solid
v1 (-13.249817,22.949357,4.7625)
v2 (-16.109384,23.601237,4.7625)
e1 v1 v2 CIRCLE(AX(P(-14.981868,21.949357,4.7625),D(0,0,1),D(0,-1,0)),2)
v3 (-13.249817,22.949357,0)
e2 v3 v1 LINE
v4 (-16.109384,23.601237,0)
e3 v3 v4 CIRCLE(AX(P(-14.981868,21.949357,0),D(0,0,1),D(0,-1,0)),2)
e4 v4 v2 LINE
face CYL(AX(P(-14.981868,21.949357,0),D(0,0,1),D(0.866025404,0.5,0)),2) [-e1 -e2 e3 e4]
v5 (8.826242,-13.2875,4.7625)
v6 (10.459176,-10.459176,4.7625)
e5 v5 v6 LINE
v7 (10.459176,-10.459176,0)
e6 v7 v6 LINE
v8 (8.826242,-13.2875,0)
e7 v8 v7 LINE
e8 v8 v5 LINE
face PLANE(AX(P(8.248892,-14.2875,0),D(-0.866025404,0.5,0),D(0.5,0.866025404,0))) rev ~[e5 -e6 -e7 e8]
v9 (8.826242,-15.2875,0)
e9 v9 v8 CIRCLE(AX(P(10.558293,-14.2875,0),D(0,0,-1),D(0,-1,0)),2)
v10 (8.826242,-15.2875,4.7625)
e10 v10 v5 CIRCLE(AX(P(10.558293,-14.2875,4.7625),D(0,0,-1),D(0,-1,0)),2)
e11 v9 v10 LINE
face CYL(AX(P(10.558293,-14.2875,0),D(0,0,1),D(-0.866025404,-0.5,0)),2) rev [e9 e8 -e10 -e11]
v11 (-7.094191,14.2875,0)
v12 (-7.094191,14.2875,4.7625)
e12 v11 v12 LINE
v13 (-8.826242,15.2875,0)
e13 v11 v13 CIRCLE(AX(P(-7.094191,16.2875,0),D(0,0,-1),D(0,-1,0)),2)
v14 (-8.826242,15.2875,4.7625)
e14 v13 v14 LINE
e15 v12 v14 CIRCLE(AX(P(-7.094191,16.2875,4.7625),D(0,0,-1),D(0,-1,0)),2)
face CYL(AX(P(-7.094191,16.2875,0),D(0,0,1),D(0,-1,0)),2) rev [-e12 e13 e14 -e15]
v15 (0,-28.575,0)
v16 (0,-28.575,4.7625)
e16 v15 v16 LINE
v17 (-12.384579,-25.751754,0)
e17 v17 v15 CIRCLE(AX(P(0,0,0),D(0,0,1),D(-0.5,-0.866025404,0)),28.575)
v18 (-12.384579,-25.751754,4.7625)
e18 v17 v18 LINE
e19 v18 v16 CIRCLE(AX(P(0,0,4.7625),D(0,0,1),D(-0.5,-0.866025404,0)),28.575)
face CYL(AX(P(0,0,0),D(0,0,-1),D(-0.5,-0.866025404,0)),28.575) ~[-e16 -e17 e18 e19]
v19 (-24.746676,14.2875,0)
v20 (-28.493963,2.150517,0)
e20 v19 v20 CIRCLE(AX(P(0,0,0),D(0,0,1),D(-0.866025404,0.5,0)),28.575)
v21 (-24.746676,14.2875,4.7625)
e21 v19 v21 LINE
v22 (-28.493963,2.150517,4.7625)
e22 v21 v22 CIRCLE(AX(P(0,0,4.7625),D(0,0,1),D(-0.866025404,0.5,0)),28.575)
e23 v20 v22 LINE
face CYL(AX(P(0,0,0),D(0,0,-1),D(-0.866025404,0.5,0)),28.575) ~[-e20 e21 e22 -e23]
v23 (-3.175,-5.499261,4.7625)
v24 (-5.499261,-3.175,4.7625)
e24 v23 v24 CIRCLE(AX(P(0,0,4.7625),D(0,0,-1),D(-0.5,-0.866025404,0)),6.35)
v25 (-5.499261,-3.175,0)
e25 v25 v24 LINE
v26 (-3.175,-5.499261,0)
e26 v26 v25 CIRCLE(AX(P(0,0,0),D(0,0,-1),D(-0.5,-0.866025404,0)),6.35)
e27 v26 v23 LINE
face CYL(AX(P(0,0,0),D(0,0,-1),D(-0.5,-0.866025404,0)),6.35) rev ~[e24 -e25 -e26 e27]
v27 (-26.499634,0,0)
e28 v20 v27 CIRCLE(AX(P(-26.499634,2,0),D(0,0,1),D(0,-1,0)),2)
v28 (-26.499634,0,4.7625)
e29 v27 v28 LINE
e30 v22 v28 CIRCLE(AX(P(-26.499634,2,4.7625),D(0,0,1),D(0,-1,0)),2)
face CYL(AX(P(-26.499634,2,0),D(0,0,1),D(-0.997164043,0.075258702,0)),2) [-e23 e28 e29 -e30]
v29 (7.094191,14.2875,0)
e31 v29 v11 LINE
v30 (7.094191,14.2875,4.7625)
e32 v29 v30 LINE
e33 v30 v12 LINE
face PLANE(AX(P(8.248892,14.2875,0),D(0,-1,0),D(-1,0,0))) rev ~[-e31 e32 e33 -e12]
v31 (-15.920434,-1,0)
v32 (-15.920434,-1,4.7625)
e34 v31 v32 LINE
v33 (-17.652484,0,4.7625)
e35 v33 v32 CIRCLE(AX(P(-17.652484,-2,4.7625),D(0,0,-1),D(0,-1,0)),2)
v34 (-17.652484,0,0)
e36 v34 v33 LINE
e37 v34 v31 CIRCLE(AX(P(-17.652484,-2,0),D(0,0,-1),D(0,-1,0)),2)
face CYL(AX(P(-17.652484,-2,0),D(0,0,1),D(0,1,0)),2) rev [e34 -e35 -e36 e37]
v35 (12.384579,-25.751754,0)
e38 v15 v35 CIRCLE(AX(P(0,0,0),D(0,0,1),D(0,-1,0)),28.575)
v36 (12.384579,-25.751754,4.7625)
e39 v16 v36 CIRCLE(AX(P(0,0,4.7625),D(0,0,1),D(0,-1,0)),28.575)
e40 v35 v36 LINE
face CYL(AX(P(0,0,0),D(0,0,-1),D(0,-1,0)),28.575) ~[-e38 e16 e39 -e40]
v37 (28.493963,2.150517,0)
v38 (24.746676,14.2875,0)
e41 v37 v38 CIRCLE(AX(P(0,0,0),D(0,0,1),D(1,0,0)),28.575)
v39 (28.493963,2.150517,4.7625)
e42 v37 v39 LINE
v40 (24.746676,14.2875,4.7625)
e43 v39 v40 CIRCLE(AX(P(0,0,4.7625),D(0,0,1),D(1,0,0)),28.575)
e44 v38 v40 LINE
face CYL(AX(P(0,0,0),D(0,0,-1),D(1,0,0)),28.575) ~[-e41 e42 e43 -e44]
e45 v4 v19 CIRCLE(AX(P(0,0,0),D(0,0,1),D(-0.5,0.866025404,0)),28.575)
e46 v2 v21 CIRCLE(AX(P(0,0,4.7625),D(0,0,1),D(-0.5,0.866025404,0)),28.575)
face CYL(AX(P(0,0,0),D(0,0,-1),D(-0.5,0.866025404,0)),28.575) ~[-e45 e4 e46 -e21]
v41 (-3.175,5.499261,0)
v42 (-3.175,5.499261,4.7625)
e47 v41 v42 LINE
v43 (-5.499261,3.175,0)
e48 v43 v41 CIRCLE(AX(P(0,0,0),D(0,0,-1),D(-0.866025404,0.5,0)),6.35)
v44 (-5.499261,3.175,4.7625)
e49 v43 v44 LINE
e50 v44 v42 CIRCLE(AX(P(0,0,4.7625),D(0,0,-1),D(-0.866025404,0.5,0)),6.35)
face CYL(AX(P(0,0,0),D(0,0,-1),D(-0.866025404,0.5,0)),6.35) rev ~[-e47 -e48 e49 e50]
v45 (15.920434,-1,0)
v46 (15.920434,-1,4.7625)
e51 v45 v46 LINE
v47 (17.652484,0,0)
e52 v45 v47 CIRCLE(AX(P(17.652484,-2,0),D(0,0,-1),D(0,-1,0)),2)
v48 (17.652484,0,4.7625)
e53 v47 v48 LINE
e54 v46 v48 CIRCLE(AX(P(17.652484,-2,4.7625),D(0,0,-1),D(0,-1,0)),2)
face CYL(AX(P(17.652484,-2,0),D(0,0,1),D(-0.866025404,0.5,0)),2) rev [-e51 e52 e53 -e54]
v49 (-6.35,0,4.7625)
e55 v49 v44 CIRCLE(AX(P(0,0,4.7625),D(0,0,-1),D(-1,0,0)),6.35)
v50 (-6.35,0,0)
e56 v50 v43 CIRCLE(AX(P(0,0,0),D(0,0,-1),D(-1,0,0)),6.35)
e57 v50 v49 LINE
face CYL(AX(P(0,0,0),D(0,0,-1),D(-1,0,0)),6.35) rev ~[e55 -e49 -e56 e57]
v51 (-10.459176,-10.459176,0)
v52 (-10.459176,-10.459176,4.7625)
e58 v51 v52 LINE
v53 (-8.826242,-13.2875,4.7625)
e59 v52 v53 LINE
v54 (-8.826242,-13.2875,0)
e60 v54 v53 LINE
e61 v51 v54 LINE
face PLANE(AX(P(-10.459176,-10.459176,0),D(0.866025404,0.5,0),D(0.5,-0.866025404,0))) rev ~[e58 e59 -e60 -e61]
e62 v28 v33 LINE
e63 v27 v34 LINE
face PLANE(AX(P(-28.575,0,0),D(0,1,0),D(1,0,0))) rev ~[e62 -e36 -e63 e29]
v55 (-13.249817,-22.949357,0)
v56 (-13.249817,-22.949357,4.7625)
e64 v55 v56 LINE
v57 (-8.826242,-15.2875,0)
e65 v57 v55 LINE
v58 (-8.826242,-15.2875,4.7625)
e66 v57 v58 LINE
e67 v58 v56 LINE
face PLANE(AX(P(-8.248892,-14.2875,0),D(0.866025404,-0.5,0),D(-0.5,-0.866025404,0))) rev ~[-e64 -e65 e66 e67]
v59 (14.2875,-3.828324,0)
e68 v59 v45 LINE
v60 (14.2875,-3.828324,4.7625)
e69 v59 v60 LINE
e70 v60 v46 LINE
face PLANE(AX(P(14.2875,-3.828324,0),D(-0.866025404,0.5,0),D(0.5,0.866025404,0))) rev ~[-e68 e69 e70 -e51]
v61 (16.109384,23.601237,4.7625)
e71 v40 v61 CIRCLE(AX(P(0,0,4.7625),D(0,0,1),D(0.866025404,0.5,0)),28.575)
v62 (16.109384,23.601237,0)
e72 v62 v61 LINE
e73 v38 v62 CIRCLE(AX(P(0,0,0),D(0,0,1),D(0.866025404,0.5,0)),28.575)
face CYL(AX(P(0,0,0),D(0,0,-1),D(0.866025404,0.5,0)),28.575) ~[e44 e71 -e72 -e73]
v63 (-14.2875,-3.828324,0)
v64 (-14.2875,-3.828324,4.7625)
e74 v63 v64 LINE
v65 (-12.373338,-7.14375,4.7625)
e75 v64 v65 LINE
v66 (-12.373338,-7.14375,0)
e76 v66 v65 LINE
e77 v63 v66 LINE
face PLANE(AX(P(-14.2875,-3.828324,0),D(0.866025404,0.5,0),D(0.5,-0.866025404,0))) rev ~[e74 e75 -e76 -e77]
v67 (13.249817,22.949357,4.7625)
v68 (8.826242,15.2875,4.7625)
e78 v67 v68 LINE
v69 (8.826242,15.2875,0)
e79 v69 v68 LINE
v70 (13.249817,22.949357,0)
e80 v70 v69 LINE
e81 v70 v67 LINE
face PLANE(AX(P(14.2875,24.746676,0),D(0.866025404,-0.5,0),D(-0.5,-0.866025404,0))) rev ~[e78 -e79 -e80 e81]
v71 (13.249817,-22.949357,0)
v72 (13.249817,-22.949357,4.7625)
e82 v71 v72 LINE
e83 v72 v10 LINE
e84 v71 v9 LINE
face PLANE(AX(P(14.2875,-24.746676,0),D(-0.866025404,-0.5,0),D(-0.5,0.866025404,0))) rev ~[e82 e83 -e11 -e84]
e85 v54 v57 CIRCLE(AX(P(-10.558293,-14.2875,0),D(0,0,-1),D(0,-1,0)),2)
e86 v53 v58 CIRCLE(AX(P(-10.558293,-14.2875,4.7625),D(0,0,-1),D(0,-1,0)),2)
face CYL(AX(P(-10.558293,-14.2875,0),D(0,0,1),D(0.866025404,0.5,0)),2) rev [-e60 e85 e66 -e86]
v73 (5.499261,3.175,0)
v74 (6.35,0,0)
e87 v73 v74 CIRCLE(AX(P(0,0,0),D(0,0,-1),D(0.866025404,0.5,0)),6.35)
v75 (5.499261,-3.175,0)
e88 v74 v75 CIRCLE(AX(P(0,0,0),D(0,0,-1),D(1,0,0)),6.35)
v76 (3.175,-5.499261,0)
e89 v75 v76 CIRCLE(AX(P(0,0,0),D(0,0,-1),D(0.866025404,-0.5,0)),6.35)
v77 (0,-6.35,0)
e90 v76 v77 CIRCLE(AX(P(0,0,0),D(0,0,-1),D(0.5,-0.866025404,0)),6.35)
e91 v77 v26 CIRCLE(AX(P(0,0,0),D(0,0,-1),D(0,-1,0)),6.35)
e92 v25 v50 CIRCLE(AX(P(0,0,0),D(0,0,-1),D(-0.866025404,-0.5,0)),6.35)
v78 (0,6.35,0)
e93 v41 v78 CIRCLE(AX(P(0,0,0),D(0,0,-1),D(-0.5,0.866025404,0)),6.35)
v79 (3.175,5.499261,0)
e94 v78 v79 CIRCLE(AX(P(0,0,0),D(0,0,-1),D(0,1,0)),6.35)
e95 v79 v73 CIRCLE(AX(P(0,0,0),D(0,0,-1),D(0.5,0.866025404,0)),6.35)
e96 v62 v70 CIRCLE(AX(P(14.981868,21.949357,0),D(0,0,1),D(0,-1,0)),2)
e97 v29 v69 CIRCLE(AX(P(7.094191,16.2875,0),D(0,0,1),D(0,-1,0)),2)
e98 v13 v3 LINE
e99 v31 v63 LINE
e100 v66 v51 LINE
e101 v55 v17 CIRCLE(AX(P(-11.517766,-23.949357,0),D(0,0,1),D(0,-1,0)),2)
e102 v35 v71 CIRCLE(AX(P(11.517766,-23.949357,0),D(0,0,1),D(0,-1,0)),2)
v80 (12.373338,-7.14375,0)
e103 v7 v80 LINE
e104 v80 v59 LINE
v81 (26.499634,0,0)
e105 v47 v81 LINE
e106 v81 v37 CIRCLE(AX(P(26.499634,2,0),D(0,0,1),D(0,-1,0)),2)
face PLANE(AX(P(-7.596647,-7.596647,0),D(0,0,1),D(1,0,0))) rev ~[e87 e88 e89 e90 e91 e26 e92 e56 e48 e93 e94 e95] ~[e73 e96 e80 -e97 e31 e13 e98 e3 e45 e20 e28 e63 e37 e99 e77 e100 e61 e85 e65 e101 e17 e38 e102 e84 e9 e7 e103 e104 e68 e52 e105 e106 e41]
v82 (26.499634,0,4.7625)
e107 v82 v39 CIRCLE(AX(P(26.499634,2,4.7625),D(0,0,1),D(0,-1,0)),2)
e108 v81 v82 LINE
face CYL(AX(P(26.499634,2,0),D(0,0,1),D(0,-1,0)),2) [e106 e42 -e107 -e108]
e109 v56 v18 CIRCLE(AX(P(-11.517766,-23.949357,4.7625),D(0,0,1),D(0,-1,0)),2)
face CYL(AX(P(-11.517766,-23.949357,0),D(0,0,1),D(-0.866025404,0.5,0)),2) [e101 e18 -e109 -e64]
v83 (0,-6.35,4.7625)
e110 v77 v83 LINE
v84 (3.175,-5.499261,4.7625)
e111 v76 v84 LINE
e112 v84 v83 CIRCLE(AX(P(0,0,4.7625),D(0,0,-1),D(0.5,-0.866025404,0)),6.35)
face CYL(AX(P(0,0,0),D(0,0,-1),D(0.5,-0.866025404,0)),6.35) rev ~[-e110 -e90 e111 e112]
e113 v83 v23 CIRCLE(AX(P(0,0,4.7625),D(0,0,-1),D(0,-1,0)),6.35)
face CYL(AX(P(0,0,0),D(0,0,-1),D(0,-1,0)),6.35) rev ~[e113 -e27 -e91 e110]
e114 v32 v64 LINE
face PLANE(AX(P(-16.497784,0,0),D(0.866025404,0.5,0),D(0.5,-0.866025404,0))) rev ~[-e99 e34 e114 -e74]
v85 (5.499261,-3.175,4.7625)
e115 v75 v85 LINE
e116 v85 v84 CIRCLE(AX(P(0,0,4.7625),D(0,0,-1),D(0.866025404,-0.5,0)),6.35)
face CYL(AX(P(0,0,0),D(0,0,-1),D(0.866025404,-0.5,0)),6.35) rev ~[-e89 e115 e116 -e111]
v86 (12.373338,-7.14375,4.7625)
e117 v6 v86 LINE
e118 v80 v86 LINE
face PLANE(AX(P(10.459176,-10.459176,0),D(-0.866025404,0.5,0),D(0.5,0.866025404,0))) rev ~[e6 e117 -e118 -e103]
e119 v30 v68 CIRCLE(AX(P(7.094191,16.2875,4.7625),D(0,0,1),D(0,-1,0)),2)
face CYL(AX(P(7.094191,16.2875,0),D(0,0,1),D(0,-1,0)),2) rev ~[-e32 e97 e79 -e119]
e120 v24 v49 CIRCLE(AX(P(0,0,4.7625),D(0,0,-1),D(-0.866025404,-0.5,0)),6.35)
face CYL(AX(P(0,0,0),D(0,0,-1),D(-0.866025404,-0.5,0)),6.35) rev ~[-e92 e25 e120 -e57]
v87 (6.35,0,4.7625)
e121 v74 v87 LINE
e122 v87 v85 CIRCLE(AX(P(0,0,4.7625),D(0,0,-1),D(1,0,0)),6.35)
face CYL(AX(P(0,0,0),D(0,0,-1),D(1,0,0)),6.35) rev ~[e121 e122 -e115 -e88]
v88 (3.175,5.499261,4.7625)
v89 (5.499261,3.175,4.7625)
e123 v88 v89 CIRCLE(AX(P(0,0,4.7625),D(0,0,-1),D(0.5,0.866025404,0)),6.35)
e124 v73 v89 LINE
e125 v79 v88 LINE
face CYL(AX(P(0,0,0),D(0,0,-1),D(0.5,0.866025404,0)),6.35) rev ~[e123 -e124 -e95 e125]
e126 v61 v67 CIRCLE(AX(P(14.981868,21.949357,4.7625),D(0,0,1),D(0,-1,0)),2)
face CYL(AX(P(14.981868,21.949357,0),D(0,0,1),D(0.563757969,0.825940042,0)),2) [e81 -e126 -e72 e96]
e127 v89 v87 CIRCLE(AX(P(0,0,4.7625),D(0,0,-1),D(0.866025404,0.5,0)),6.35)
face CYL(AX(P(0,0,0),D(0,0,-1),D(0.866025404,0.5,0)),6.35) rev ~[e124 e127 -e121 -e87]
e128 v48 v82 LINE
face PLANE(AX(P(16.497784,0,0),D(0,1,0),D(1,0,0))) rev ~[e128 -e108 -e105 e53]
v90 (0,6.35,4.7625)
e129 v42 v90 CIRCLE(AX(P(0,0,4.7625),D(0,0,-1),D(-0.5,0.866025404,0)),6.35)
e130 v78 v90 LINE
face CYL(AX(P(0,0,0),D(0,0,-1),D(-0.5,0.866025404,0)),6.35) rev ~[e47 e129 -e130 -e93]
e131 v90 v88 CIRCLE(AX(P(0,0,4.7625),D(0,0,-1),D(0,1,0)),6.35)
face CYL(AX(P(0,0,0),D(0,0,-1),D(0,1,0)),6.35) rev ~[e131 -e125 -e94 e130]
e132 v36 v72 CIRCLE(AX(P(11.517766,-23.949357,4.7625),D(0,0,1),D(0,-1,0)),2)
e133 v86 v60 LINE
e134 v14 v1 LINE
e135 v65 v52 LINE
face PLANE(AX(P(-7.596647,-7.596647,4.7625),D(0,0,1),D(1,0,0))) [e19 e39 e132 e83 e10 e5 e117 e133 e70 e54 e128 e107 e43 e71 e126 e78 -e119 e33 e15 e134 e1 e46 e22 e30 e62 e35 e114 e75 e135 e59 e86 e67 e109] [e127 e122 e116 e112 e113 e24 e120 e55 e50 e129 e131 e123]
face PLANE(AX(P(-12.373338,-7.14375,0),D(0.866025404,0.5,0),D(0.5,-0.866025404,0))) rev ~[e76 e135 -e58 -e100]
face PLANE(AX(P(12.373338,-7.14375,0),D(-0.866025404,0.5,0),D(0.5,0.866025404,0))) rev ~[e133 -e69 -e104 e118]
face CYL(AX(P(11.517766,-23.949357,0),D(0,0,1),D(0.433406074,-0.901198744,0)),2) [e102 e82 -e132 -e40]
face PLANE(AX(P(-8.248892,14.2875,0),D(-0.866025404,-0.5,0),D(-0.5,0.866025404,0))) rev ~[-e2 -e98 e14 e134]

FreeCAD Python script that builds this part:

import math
import FreeCAD as App
import Part
import Sketcher
from FreeCAD import Vector
Q = App.Units.Quantity


def edges_at(feature, points):
    """Names of the edges that pass closest to the given points."""
    edges = feature.Shape.Edges
    near = lambda p: min(range(len(edges)), key=lambda i: edges[i].distToShape(Part.Vertex(*p))[0])
    return sorted({f"Edge{near(p) + 1}" for p in points})

doc = App.newDocument("Part")
body = doc.addObject("PartDesign::Body", "Body")

# Sketch on XY plane
sketch1 = body.newObject("Sketcher::SketchObject", "Sketch")
sketch1.AttachmentSupport = (doc.getObject("XY_Plane"), [""])
sketch1.MapMode = "FlatFace"
sketch1.addGeometry([
    Part.LineSegment(Vector(8.2, 14.3, 0), Vector(-8.2, 14.3, 0)),  # 0
    Part.LineSegment(Vector(-8.2, 14.3, 0), Vector(-14.3, 24.7, 0)),  # 1
    Part.ArcOfCircle(Part.Circle(Vector(0, 0, 0), Vector(0, 0, 1), 28.6), math.radians(120), math.radians(150)),  # 2
    Part.ArcOfCircle(Part.Circle(Vector(0, 0, 0), Vector(0, 0, 1), 28.6), math.radians(150), math.radians(180)),  # 3
    Part.LineSegment(Vector(-28.6, 0, 0), Vector(-16.5, 0, 0)),  # 4
    Part.LineSegment(Vector(-16.5, 0, 0), Vector(-14.3, -3.8, 0)),  # 5
    Part.LineSegment(Vector(-14.3, -3.8, 0), Vector(-12.4, -7.1, 0)),  # 6
    Part.LineSegment(Vector(-12.4, -7.1, 0), Vector(-10.5, -10.5, 0)),  # 7
    Part.LineSegment(Vector(-10.5, -10.5, 0), Vector(-8.2, -14.3, 0)),  # 8
    Part.LineSegment(Vector(-8.2, -14.3, 0), Vector(-14.3, -24.7, 0)),  # 9
    Part.ArcOfCircle(Part.Circle(Vector(0, 0, 0), Vector(0, 0, 1), 28.6), math.radians(-120), math.radians(-90)),  # 10
    Part.ArcOfCircle(Part.Circle(Vector(0, 0, 0), Vector(0, 0, 1), 28.6), math.radians(-90), math.radians(-60)),  # 11
    Part.LineSegment(Vector(14.3, -24.7, 0), Vector(8.2, -14.3, 0)),  # 12
    Part.LineSegment(Vector(8.2, -14.3, 0), Vector(10.5, -10.5, 0)),  # 13
    Part.LineSegment(Vector(10.5, -10.5, 0), Vector(12.4, -7.1, 0)),  # 14
    Part.LineSegment(Vector(12.4, -7.1, 0), Vector(14.3, -3.8, 0)),  # 15
    Part.LineSegment(Vector(14.3, -3.8, 0), Vector(16.5, 0, 0)),  # 16
    Part.LineSegment(Vector(16.5, 0, 0), Vector(28.6, 0, 0)),  # 17
    Part.ArcOfCircle(Part.Circle(Vector(0, 0, 0), Vector(0, 0, 1), 28.6), math.radians(0), math.radians(30)),  # 18
    Part.ArcOfCircle(Part.Circle(Vector(0, 0, 0), Vector(0, 0, 1), 28.6), math.radians(30), math.radians(60)),  # 19
    Part.LineSegment(Vector(14.3, 24.7, 0), Vector(8.2, 14.3, 0)),  # 20
    Part.ArcOfCircle(Part.Circle(Vector(0, 0, 0), Vector(0, 0, 1), 6.4), math.radians(90), math.radians(120)),  # 21
    Part.ArcOfCircle(Part.Circle(Vector(0, 0, 0), Vector(0, 0, 1), 6.4), math.radians(60), math.radians(90)),  # 22
    Part.ArcOfCircle(Part.Circle(Vector(0, 0, 0), Vector(0, 0, 1), 6.4), math.radians(30), math.radians(60)),  # 23
    Part.ArcOfCircle(Part.Circle(Vector(0, 0, 0), Vector(0, 0, 1), 6.4), math.radians(0), math.radians(30)),  # 24
    Part.ArcOfCircle(Part.Circle(Vector(0, 0, 0), Vector(0, 0, 1), 6.4), math.radians(-30), math.radians(0)),  # 25
    Part.ArcOfCircle(Part.Circle(Vector(0, 0, 0), Vector(0, 0, 1), 6.4), math.radians(-60), math.radians(-30)),  # 26
    Part.ArcOfCircle(Part.Circle(Vector(0, 0, 0), Vector(0, 0, 1), 6.4), math.radians(-90), math.radians(-60)),  # 27
    Part.ArcOfCircle(Part.Circle(Vector(0, 0, 0), Vector(0, 0, 1), 6.4), math.radians(-120), math.radians(-90)),  # 28
    Part.ArcOfCircle(Part.Circle(Vector(0, 0, 0), Vector(0, 0, 1), 6.4), math.radians(-150), math.radians(-120)),  # 29
    Part.ArcOfCircle(Part.Circle(Vector(0, 0, 0), Vector(0, 0, 1), 6.4), math.radians(180), math.radians(210)),  # 30
    Part.ArcOfCircle(Part.Circle(Vector(0, 0, 0), Vector(0, 0, 1), 6.4), math.radians(150), math.radians(180)),  # 31
    Part.ArcOfCircle(Part.Circle(Vector(0, 0, 0), Vector(0, 0, 1), 6.4), math.radians(120), math.radians(150)),  # 32
], False)
sketch1.addConstraint([
    Sketcher.Constraint("Coincident", 0, 2, 1, 1),
    Sketcher.Constraint("Coincident", 1, 2, 2, 1),
    Sketcher.Constraint("Tangent", 2, 2, 3, 1),
    Sketcher.Constraint("Coincident", 3, 2, 4, 1),
    Sketcher.Constraint("Coincident", 4, 2, 5, 1),
    Sketcher.Constraint("Coincident", 5, 2, 6, 1),
    Sketcher.Constraint("Coincident", 6, 2, 7, 1),
    Sketcher.Constraint("Coincident", 7, 2, 8, 1),
    Sketcher.Constraint("Coincident", 8, 2, 9, 1),
    Sketcher.Constraint("Coincident", 9, 2, 10, 1),
    Sketcher.Constraint("Tangent", 10, 2, 11, 1),
    Sketcher.Constraint("Coincident", 11, 2, 12, 1),
    Sketcher.Constraint("Coincident", 12, 2, 13, 1),
    Sketcher.Constraint("Coincident", 13, 2, 14, 1),
    Sketcher.Constraint("Coincident", 14, 2, 15, 1),
    Sketcher.Constraint("Coincident", 15, 2, 16, 1),
    Sketcher.Constraint("Coincident", 16, 2, 17, 1),
    Sketcher.Constraint("Coincident", 17, 2, 18, 1),
    Sketcher.Constraint("Tangent", 18, 2, 19, 1),
    Sketcher.Constraint("Coincident", 19, 2, 20, 1),
    Sketcher.Constraint("Coincident", 20, 2, 0, 1),
    Sketcher.Constraint("Tangent", 21, 1, 22, 2),
    Sketcher.Constraint("Tangent", 22, 1, 23, 2),
    Sketcher.Constraint("Tangent", 23, 1, 24, 2),
    Sketcher.Constraint("Tangent", 24, 1, 25, 2),
    Sketcher.Constraint("Tangent", 25, 1, 26, 2),
    Sketcher.Constraint("Tangent", 26, 1, 27, 2),
    Sketcher.Constraint("Tangent", 27, 1, 28, 2),
    Sketcher.Constraint("Tangent", 28, 1, 29, 2),
    Sketcher.Constraint("Tangent", 29, 1, 30, 2),
    Sketcher.Constraint("Tangent", 30, 1, 31, 2),
    Sketcher.Constraint("Tangent", 31, 1, 32, 2),
    Sketcher.Constraint("Tangent", 32, 1, 21, 2),
    Sketcher.Constraint("Horizontal", 0),
    Sketcher.Constraint("Horizontal", 4),
    Sketcher.Constraint("Horizontal", 17),
    Sketcher.Constraint("Coincident", 2, 3, -1, 1),
    Sketcher.Constraint("Coincident", 10, 3, -1, 1),
    Sketcher.Constraint("Coincident", 18, 3, -1, 1),
    Sketcher.Constraint("Coincident", 21, 3, -1, 1),
    Sketcher.Constraint("Coincident", 23, 3, -1, 1),
    Sketcher.Constraint("Coincident", 25, 3, -1, 1),
    Sketcher.Constraint("Coincident", 27, 3, -1, 1),
    Sketcher.Constraint("Coincident", 29, 3, -1, 1),
    Sketcher.Constraint("Equal", 2, 3),
    Sketcher.Constraint("Equal", 3, 10),
    Sketcher.Constraint("Equal", 10, 11),
    Sketcher.Constraint("Equal", 11, 18),
    Sketcher.Constraint("Equal", 18, 19),
    Sketcher.Constraint("Equal", 29, 30),
    Sketcher.Constraint("Symmetric", 0, 2, 12, 2, -1, 1),
    Sketcher.Constraint("Symmetric", 4, 2, 16, 2, -1, 1),
    Sketcher.Constraint("Symmetric", 8, 2, 20, 2, -1, 1),
    Sketcher.Constraint("Symmetric", 7, 2, 13, 2, -2),
    Sketcher.Constraint("Symmetric", 6, 2, 14, 2, -2),
    Sketcher.Constraint("Symmetric", 5, 2, 15, 2, -2),
    Sketcher.Constraint("PointOnObject", 3, 2, -1),
    Sketcher.Constraint("PointOnObject", 10, 2, -2),
    Sketcher.Constraint("PointOnObject", 21, 1, -2),
    Sketcher.Constraint("PointOnObject", 24, 1, -1),
    Sketcher.Constraint("PointOnObject", 27, 1, -2),
    Sketcher.Constraint("PointOnObject", 30, 1, -1),
    Sketcher.Constraint("Parallel", 1, 5),
    Sketcher.Constraint("Parallel", 5, 6),
    Sketcher.Constraint("Parallel", 6, 7),
    Sketcher.Constraint("Parallel", 7, 8),
    Sketcher.Constraint("Parallel", 8, 12),
    Sketcher.Constraint("Parallel", 9, 13),
    Sketcher.Constraint("Parallel", 13, 14),
    Sketcher.Constraint("Parallel", 16, 20),
    Sketcher.Constraint("Horizontal", 0, 2, 2, 2),
    Sketcher.Constraint("Horizontal", 2, 2, 18, 2),
    Sketcher.Constraint("Horizontal", 26, 1, 28, 1),
    Sketcher.Constraint("Horizontal", 25, 1, 29, 1),
    Sketcher.Constraint("Horizontal", 23, 1, 31, 1),
    Sketcher.Constraint("Horizontal", 22, 1, 32, 1),
    Sketcher.Constraint("Vertical", 1, 2, 5, 2),
    Sketcher.Constraint("Vertical", 23, 1, 25, 1),
    Sketcher.Constraint("Vertical", 22, 1, 26, 1),
    Sketcher.Constraint("Equal", 6, 7),
    Sketcher.Constraint("Equal", 5, 8),
    Sketcher.Constraint("Radius", 21, Q("0.25 in")),
    Sketcher.Constraint("Angle", 1, Q("120 deg")),
    Sketcher.Constraint("Radius", 2, Q("1.125 in")),
    Sketcher.Constraint("DistanceY", -1, 1, 0, 2, Q("0.5625 in")),
    Sketcher.Constraint("DistanceX", 1, 2, -1, 1, Q("0.5625 in")),
    Sketcher.Constraint("DistanceX", -1, 1, 22, 1, Q("0.125 in")),
    Sketcher.Constraint("DistanceY", -1, 1, 23, 1, Q("0.125 in")),
])
pad1 = body.newObject("PartDesign::Pad", "Pad")
pad1.Profile = sketch1
pad1.Length = Q("0.1875 in")
doc.recompute()

fillet = body.newObject("PartDesign::Fillet", "Fillet")
fillet.Base = (pad1, edges_at(pad1, [
    (-28.575, 0, 2.381),
    (28.575, 0, 2.381),
    (14.287, -24.747, 2.381),
    (-14.287, -24.747, 2.381),
    (-14.287, 24.747, 2.381),
    (14.287, 24.747, 2.381),
    (8.249, -14.287, 2.381),
    (-8.249, 14.287, 2.381),
    (8.249, 14.287, 2.381),
    (-16.498, 0, 2.381),
    (-8.249, -14.287, 2.381),
    (16.498, 0, 2.381),
]))
fillet.Radius = 2

doc.recompute()
